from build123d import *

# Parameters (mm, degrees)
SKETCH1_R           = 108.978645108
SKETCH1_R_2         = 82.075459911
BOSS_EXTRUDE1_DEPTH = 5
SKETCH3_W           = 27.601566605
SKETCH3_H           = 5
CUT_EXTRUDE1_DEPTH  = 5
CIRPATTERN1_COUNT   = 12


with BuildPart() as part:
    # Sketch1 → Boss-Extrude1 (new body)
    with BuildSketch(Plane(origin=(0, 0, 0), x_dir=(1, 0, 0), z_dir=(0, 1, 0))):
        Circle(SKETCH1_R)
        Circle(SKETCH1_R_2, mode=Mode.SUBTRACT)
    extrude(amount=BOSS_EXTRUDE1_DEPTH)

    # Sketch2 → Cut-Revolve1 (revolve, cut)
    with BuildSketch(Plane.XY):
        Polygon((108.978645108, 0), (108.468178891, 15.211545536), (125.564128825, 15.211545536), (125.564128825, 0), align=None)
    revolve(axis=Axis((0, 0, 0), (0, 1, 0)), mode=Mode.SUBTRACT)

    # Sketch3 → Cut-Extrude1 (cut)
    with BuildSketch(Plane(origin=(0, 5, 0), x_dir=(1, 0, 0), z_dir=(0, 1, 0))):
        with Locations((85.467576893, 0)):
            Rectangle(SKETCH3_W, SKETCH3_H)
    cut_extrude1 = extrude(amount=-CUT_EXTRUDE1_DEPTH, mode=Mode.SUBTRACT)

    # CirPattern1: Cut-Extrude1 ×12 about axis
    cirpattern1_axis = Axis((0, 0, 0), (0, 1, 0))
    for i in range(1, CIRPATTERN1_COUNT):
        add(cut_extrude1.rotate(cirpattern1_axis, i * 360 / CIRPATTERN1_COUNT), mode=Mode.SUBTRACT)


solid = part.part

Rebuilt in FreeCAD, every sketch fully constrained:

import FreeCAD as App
import Part
import Sketcher
from FreeCAD import Vector
Q = App.Units.Quantity


def add_polygon(sketch, points):
    """Adds a closed chain of lines whose ends are joined by coincident constraints."""
    first, n = sketch.GeometryCount, len(points)
    for a, b in zip(points, points[1:] + points[:1]):
        sketch.addGeometry(Part.LineSegment(App.Vector(*a, 0), App.Vector(*b, 0)), False)
    for i in range(n):
        sketch.addConstraint(Sketcher.Constraint("Coincident", first + i, 2, first + (i + 1) % n, 1))

doc = App.newDocument("Part")
body = doc.addObject("PartDesign::Body", "Body")

# Sketch on XZ plane
sketch1 = body.newObject("Sketcher::SketchObject", "Sketch")
sketch1.AttachmentSupport = (doc.getObject("XZ_Plane"), [""])
sketch1.MapMode = "FlatFace"
sketch1.addGeometry([
    Part.Circle(Vector(0, 0, 0), Vector(0, 0, 1), 108.978645),
    Part.Circle(Vector(0, 0, 0), Vector(0, 0, 1), 82.07546),
], False)
sketch1.addConstraint([
    Sketcher.Constraint("Coincident", 0, 3, -1, 1),
    Sketcher.Constraint("Coincident", 1, 3, -1, 1),
    Sketcher.Constraint("Diameter", 0, Q("217.95729 mm")),
    Sketcher.Constraint("Diameter", 1, Q("164.15092 mm")),
])
pad1 = body.newObject("PartDesign::Pad", "Pad")
pad1.Profile = sketch1
pad1.Length = 5
pad1.Reversed = True

# Sketch on XY plane
sketch2 = body.newObject("Sketcher::SketchObject", "Sketch001")
sketch2.AttachmentSupport = (doc.getObject("XY_Plane"), [""])
sketch2.MapMode = "FlatFace"
add_polygon(sketch2, [(108.468179, 15.211546), (108.978645, 0), (125.564129, 0), (125.564129, 15.211546)])  # lines 0-3
sketch2.addConstraint([
    Sketcher.Constraint("Horizontal", 1),
    Sketcher.Constraint("Vertical", 2),
    Sketcher.Constraint("Horizontal", 3),
    Sketcher.Constraint("PointOnObject", 0, 2, -1),
    Sketcher.Constraint("DistanceX", 3, 2, 3, 1, Q("17.09595 mm")),
    Sketcher.Constraint("Distance", 0, Q("15.220108 mm")),
    Sketcher.Constraint("DistanceX", 1, 1, 1, 2, Q("16.585484 mm")),
    Sketcher.Constraint("DistanceX", -1, 1, 1, 2, Q("125.564129 mm")),
])
groove = body.newObject("PartDesign::Groove", "Groove")
groove.Profile = sketch2
groove.ReferenceAxis = (sketch2, ["V_Axis"])
groove.Angle = 360

# Sketch on XZ plane
sketch3 = body.newObject("Sketcher::SketchObject", "Sketch002")
sketch3.AttachmentSupport = (doc.getObject("XZ_Plane"), [""])
sketch3.MapMode = "FlatFace"
sketch3.AttachmentOffset = App.Placement(Vector(0, 0, -5), App.Rotation())
add_polygon(sketch3, [(71.666794, -2.5), (71.666794, 2.5), (99.26836, 2.5), (99.26836, -2.5)])  # lines 0-3
sketch3.addConstraint([
    Sketcher.Constraint("Vertical", 0),
    Sketcher.Constraint("Horizontal", 1),
    Sketcher.Constraint("Vertical", 2),
    Sketcher.Constraint("Horizontal", 3),
    Sketcher.Constraint("DistanceY", 0, 1, 0, 2, Q("5 mm")),
    Sketcher.Constraint("DistanceY", -1, 1, 0, 2, Q("2.5 mm")),
    Sketcher.Constraint("DistanceX", 1, 1, 1, 2, Q("27.601567 mm")),
    Sketcher.Constraint("DistanceX", -1, 1, 1, 2, Q("99.26836 mm")),
])
pocket1 = body.newObject("PartDesign::Pocket", "Pocket")
pocket1.Profile = sketch3
pocket1.Length = 5
pocket1.Reversed = True
doc.recompute()

polarpattern = body.newObject("PartDesign::PolarPattern", "PolarPattern")
polarpattern.Originals = [pocket1]
polarpattern.Axis = (doc.getObject("Y_Axis"), [""])
polarpattern.Angle = 360
polarpattern.Occurrences = 12
body.Tip = polarpattern

doc.recompute()
